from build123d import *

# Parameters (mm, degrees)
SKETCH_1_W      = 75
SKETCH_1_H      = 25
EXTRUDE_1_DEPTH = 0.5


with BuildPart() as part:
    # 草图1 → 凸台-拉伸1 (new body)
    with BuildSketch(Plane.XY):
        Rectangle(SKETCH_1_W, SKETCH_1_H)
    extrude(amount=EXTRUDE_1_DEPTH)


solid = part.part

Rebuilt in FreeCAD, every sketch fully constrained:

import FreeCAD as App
import Part
import Sketcher

doc = App.newDocument("Part")
params = doc.addObject("Spreadsheet::Sheet", "Params")
for row, (alias, value) in enumerate([
    ("sketch1_width", "75 mm"),
    ("sketch1_height", "25 mm"),
    ("pad1_length", "0.5 mm"),
], start=1):
    params.set(f"A{row}", alias)
    params.set(f"B{row}", "=" + value)
    params.setAlias(f"B{row}", alias)

body = doc.addObject("PartDesign::Body", "Body")

# Sketch on XY plane
sketch1 = body.newObject("Sketcher::SketchObject", "Sketch")
sketch1.AttachmentSupport = (doc.getObject("XY_Plane"), [""])
sketch1.MapMode = "FlatFace"
sketch1.addGeometry([
    Part.LineSegment(App.Vector(-38, 12, 0), App.Vector(-38, -12, 0)),
    Part.LineSegment(App.Vector(-38, -12, 0), App.Vector(38, -12, 0)),
    Part.LineSegment(App.Vector(38, -12, 0), App.Vector(38, 12, 0)),
    Part.LineSegment(App.Vector(38, 12, 0), App.Vector(-38, 12, 0)),
], False)
sketch1.addConstraint([
    Sketcher.Constraint("Coincident", 0, 2, 1, 1),
    Sketcher.Constraint("Coincident", 1, 2, 2, 1),
    Sketcher.Constraint("Coincident", 2, 2, 3, 1),
    Sketcher.Constraint("Coincident", 3, 2, 0, 1),
    Sketcher.Constraint("Vertical", 0),
    Sketcher.Constraint("Horizontal", 1),
    Sketcher.Constraint("Vertical", 2),
    Sketcher.Constraint("Horizontal", 3),
    Sketcher.Constraint("Symmetric", 0, 2, 2, 2, -1, 1),
    Sketcher.Constraint("DistanceX", 1, 1, 1, 2, 75.0),
    Sketcher.Constraint("DistanceY", 0, 2, 0, 1, 25.0),
])
sketch1.setExpression("Constraints[9]", "Params.sketch1_width")
sketch1.setExpression("Constraints[10]", "Params.sketch1_height")
pad1 = body.newObject("PartDesign::Pad", "Pad")
pad1.Profile = sketch1
pad1.setExpression("Length", "Params.pad1_length")

doc.recompute()
